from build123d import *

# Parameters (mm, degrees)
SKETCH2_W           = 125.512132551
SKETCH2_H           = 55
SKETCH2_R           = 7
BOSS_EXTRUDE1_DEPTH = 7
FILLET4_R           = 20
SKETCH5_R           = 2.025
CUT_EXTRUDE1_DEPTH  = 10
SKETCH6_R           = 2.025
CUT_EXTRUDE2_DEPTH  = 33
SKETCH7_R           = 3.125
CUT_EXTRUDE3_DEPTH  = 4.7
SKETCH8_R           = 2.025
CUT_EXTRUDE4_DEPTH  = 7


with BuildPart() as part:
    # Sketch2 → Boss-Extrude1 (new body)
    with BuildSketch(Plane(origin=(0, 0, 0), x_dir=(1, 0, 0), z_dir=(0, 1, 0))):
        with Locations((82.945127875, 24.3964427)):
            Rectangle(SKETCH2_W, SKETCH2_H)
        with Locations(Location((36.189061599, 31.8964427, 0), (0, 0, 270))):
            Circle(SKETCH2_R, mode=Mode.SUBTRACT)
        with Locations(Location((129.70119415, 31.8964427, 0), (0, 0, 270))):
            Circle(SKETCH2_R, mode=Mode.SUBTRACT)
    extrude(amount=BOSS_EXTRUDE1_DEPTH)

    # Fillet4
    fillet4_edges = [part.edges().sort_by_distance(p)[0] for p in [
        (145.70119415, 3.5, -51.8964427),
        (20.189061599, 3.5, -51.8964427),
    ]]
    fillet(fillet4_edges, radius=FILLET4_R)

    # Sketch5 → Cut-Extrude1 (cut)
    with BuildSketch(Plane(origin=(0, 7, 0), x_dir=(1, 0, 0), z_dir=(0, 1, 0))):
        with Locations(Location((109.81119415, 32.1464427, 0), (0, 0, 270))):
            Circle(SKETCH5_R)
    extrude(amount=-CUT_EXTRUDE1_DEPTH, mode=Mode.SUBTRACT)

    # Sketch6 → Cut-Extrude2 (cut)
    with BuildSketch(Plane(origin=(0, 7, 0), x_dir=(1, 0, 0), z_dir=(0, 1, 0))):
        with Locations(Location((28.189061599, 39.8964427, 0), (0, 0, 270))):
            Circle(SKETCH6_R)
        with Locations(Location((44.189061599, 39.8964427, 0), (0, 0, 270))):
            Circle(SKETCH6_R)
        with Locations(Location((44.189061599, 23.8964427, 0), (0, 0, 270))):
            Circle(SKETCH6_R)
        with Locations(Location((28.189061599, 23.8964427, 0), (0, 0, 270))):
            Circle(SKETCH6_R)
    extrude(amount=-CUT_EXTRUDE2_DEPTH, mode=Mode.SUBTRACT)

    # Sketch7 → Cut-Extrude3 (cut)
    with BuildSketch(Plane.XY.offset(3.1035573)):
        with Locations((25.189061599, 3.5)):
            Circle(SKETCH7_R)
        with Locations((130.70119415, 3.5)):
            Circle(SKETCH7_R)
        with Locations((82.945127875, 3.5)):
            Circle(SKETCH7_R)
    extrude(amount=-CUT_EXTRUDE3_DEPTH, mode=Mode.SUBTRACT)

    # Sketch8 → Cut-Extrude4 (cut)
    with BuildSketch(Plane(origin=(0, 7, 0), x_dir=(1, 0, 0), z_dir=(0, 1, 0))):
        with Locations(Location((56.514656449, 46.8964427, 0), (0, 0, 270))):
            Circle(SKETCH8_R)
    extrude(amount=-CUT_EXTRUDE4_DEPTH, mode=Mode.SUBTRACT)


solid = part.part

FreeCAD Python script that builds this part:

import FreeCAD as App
import Part
import Sketcher

V = App.Vector
Q = App.Units.Quantity


def edges_at(feature, points):
    """Names of the edges that pass closest to the given points."""
    edges = feature.Shape.Edges
    near = lambda p: min(range(len(edges)), key=lambda i: edges[i].distToShape(Part.Vertex(*p))[0])
    return sorted({f"Edge{near(p) + 1}" for p in points})


def add_polygon(sketch, points):
    """Adds a closed chain of lines whose ends are joined by coincident constraints."""
    first, n = sketch.GeometryCount, len(points)
    for a, b in zip(points, points[1:] + points[:1]):
        sketch.addGeometry(Part.LineSegment(App.Vector(*a, 0), App.Vector(*b, 0)), False)
    for i in range(n):
        sketch.addConstraint(Sketcher.Constraint("Coincident", first + i, 2, first + (i + 1) % n, 1))

doc = App.newDocument("Part")
body = doc.addObject("PartDesign::Body", "Body")

# Sketch on XZ plane
sketch1 = body.newObject("Sketcher::SketchObject", "Sketch")
sketch1.AttachmentSupport = (doc.getObject("XZ_Plane"), [""])
sketch1.MapMode = "FlatFace"
add_polygon(sketch1, [(20, -52), (20, 3), (146, 3), (146, -52)])  # lines 0-3
sketch1.addGeometry(Part.Circle(V(36, -32, 0), V(0, 0, 1), 7), False)  # 4
sketch1.addGeometry(Part.Circle(V(130, -32, 0), V(0, 0, 1), 7), False)  # 5
sketch1.addConstraint(Sketcher.Constraint("Vertical", 0))
sketch1.addConstraint(Sketcher.Constraint("Horizontal", 1))
sketch1.addConstraint(Sketcher.Constraint("Vertical", 2))
sketch1.addConstraint(Sketcher.Constraint("Horizontal", 3))
sketch1.addConstraint(Sketcher.Constraint("Equal", 4, 5))
sketch1.addConstraint(Sketcher.Constraint("Horizontal", 4, 3, 5, 3))
sketch1.addConstraint(Sketcher.Constraint("Diameter", 4, Q("14 mm")))
sketch1.addConstraint(Sketcher.Constraint("DistanceY", 0, 1, 0, 2, Q("55 mm")))
sketch1.addConstraint(Sketcher.Constraint("DistanceX", 0, 2, 4, 3, Q("16 mm")))
sketch1.addConstraint(Sketcher.Constraint("DistanceY", 4, 3, 0, 2, Q("35 mm")))
sketch1.addConstraint(Sketcher.Constraint("DistanceX", 5, 3, 1, 2, Q("16 mm")))
sketch1.addConstraint(Sketcher.Constraint("DistanceX", 1, 1, 1, 2, Q("125.512133 mm")))
sketch1.addConstraint(Sketcher.Constraint("DistanceX", -1, 1, 4, 3, Q("36.189062 mm")))
sketch1.addConstraint(Sketcher.Constraint("DistanceY", 4, 3, -1, 1, Q("31.896443 mm")))
pad1 = body.newObject("PartDesign::Pad", "Pad")
pad1.Profile = sketch1
pad1.Length = 7
pad1.Reversed = True
doc.recompute()

fillet = body.newObject("PartDesign::Fillet", "Fillet")
fillet.Base = (pad1, edges_at(pad1, [(145.701, 3.5, -51.896), (20.189, 3.5, -51.896)]))
fillet.Radius = 20

# Sketch on XZ plane
sketch2 = body.newObject("Sketcher::SketchObject", "Sketch001")
sketch2.AttachmentSupport = (doc.getObject("XZ_Plane"), [""])
sketch2.MapMode = "FlatFace"
sketch2.AttachmentOffset = App.Placement(V(0, 0, -7), App.Rotation())
sketch2.addGeometry(Part.Circle(V(109.8, -32.1, 0), V(0, 0, 1), 2), False)
sketch2.addConstraint(Sketcher.Constraint("Diameter", 0, Q("4.05 mm")))
sketch2.addConstraint(Sketcher.Constraint("DistanceX", -1, 1, 0, 3, Q("109.811194 mm")))
sketch2.addConstraint(Sketcher.Constraint("DistanceY", 0, 3, -1, 1, Q("32.146443 mm")))
pocket1 = body.newObject("PartDesign::Pocket", "Pocket")
pocket1.Profile = sketch2
pocket1.Length = 10
pocket1.Reversed = True

# Sketch on XZ plane
sketch3 = body.newObject("Sketcher::SketchObject", "Sketch002")
sketch3.AttachmentSupport = (doc.getObject("XZ_Plane"), [""])
sketch3.MapMode = "FlatFace"
sketch3.AttachmentOffset = App.Placement(V(0, 0, -7), App.Rotation())
sketch3.addGeometry(Part.Circle(V(28.2, -39.9, 0), V(0, 0, 1), 2), False)
sketch3.addGeometry(Part.Circle(V(44.2, -39.9, 0), V(0, 0, 1), 2), False)
sketch3.addGeometry(Part.Circle(V(44.2, -23.9, 0), V(0, 0, 1), 2), False)
sketch3.addGeometry(Part.Circle(V(28.2, -23.9, 0), V(0, 0, 1), 2), False)
sketch3.addConstraint(Sketcher.Constraint("Equal", 0, 1))
sketch3.addConstraint(Sketcher.Constraint("Equal", 1, 2))
sketch3.addConstraint(Sketcher.Constraint("Equal", 2, 3))
sketch3.addConstraint(Sketcher.Constraint("Horizontal", 0, 3, 1, 3))
sketch3.addConstraint(Sketcher.Constraint("Horizontal", 2, 3, 3, 3))
sketch3.addConstraint(Sketcher.Constraint("Vertical", 1, 3, 2, 3))
sketch3.addConstraint(Sketcher.Constraint("Vertical", 0, 3, 3, 3))
sketch3.addConstraint(Sketcher.Constraint("Diameter", 0, Q("4.05 mm")))
sketch3.addConstraint(Sketcher.Constraint("DistanceX", 0, 3, 1, 3, Q("16 mm")))
sketch3.addConstraint(Sketcher.Constraint("DistanceY", 1, 3, 2, 3, Q("16 mm")))
sketch3.addConstraint(Sketcher.Constraint("DistanceX", -1, 1, 0, 3, Q("28.189062 mm")))
sketch3.addConstraint(Sketcher.Constraint("DistanceY", 0, 3, -1, 1, Q("39.896443 mm")))
pocket2 = body.newObject("PartDesign::Pocket", "Pocket001")
pocket2.Profile = sketch3
pocket2.Length = 33
pocket2.Reversed = True

# Sketch on XY plane
sketch4 = body.newObject("Sketcher::SketchObject", "Sketch003")
sketch4.AttachmentSupport = (doc.getObject("XY_Plane"), [""])
sketch4.MapMode = "FlatFace"
sketch4.AttachmentOffset = App.Placement(V(0, 0, 3.103557), App.Rotation())
sketch4.addGeometry(Part.Circle(V(25.2, 3.5, 0), V(0, 0, 1), 3.1), False)
sketch4.addGeometry(Part.Circle(V(130.7, 3.5, 0), V(0, 0, 1), 3.1), False)
sketch4.addGeometry(Part.Circle(V(82.9, 3.5, 0), V(0, 0, 1), 3.1), False)
sketch4.addConstraint(Sketcher.Constraint("Equal", 0, 1))
sketch4.addConstraint(Sketcher.Constraint("Equal", 1, 2))
sketch4.addConstraint(Sketcher.Constraint("Horizontal", 0, 3, 1, 3))
sketch4.addConstraint(Sketcher.Constraint("Horizontal", 1, 3, 2, 3))
sketch4.addConstraint(Sketcher.Constraint("Diameter", 0, Q("6.25 mm")))
sketch4.addConstraint(Sketcher.Constraint("DistanceY", -1, 1, 0, 3, Q("3.5 mm")))
sketch4.addConstraint(Sketcher.Constraint("DistanceX", -1, 1, 0, 3, Q("25.189062 mm")))
sketch4.addConstraint(Sketcher.Constraint("DistanceX", -1, 1, 1, 3, Q("130.701194 mm")))
sketch4.addConstraint(Sketcher.Constraint("DistanceX", -1, 1, 2, 3, Q("82.945128 mm")))
pocket3 = body.newObject("PartDesign::Pocket", "Pocket002")
pocket3.Profile = sketch4
pocket3.Length = 4.7

# Sketch on XZ plane
sketch5 = body.newObject("Sketcher::SketchObject", "Sketch004")
sketch5.AttachmentSupport = (doc.getObject("XZ_Plane"), [""])
sketch5.MapMode = "FlatFace"
sketch5.AttachmentOffset = App.Placement(V(0, 0, -7), App.Rotation())
sketch5.addGeometry(Part.Circle(V(56.5, -46.9, 0), V(0, 0, 1), 2), False)
sketch5.addConstraint(Sketcher.Constraint("Diameter", 0, Q("4.05 mm")))
sketch5.addConstraint(Sketcher.Constraint("DistanceX", -1, 1, 0, 3, Q("56.514656 mm")))
sketch5.addConstraint(Sketcher.Constraint("DistanceY", 0, 3, -1, 1, Q("46.896443 mm")))
pocket4 = body.newObject("PartDesign::Pocket", "Pocket003")
pocket4.Profile = sketch5
pocket4.Length = 7
pocket4.Reversed = True

doc.recompute()
